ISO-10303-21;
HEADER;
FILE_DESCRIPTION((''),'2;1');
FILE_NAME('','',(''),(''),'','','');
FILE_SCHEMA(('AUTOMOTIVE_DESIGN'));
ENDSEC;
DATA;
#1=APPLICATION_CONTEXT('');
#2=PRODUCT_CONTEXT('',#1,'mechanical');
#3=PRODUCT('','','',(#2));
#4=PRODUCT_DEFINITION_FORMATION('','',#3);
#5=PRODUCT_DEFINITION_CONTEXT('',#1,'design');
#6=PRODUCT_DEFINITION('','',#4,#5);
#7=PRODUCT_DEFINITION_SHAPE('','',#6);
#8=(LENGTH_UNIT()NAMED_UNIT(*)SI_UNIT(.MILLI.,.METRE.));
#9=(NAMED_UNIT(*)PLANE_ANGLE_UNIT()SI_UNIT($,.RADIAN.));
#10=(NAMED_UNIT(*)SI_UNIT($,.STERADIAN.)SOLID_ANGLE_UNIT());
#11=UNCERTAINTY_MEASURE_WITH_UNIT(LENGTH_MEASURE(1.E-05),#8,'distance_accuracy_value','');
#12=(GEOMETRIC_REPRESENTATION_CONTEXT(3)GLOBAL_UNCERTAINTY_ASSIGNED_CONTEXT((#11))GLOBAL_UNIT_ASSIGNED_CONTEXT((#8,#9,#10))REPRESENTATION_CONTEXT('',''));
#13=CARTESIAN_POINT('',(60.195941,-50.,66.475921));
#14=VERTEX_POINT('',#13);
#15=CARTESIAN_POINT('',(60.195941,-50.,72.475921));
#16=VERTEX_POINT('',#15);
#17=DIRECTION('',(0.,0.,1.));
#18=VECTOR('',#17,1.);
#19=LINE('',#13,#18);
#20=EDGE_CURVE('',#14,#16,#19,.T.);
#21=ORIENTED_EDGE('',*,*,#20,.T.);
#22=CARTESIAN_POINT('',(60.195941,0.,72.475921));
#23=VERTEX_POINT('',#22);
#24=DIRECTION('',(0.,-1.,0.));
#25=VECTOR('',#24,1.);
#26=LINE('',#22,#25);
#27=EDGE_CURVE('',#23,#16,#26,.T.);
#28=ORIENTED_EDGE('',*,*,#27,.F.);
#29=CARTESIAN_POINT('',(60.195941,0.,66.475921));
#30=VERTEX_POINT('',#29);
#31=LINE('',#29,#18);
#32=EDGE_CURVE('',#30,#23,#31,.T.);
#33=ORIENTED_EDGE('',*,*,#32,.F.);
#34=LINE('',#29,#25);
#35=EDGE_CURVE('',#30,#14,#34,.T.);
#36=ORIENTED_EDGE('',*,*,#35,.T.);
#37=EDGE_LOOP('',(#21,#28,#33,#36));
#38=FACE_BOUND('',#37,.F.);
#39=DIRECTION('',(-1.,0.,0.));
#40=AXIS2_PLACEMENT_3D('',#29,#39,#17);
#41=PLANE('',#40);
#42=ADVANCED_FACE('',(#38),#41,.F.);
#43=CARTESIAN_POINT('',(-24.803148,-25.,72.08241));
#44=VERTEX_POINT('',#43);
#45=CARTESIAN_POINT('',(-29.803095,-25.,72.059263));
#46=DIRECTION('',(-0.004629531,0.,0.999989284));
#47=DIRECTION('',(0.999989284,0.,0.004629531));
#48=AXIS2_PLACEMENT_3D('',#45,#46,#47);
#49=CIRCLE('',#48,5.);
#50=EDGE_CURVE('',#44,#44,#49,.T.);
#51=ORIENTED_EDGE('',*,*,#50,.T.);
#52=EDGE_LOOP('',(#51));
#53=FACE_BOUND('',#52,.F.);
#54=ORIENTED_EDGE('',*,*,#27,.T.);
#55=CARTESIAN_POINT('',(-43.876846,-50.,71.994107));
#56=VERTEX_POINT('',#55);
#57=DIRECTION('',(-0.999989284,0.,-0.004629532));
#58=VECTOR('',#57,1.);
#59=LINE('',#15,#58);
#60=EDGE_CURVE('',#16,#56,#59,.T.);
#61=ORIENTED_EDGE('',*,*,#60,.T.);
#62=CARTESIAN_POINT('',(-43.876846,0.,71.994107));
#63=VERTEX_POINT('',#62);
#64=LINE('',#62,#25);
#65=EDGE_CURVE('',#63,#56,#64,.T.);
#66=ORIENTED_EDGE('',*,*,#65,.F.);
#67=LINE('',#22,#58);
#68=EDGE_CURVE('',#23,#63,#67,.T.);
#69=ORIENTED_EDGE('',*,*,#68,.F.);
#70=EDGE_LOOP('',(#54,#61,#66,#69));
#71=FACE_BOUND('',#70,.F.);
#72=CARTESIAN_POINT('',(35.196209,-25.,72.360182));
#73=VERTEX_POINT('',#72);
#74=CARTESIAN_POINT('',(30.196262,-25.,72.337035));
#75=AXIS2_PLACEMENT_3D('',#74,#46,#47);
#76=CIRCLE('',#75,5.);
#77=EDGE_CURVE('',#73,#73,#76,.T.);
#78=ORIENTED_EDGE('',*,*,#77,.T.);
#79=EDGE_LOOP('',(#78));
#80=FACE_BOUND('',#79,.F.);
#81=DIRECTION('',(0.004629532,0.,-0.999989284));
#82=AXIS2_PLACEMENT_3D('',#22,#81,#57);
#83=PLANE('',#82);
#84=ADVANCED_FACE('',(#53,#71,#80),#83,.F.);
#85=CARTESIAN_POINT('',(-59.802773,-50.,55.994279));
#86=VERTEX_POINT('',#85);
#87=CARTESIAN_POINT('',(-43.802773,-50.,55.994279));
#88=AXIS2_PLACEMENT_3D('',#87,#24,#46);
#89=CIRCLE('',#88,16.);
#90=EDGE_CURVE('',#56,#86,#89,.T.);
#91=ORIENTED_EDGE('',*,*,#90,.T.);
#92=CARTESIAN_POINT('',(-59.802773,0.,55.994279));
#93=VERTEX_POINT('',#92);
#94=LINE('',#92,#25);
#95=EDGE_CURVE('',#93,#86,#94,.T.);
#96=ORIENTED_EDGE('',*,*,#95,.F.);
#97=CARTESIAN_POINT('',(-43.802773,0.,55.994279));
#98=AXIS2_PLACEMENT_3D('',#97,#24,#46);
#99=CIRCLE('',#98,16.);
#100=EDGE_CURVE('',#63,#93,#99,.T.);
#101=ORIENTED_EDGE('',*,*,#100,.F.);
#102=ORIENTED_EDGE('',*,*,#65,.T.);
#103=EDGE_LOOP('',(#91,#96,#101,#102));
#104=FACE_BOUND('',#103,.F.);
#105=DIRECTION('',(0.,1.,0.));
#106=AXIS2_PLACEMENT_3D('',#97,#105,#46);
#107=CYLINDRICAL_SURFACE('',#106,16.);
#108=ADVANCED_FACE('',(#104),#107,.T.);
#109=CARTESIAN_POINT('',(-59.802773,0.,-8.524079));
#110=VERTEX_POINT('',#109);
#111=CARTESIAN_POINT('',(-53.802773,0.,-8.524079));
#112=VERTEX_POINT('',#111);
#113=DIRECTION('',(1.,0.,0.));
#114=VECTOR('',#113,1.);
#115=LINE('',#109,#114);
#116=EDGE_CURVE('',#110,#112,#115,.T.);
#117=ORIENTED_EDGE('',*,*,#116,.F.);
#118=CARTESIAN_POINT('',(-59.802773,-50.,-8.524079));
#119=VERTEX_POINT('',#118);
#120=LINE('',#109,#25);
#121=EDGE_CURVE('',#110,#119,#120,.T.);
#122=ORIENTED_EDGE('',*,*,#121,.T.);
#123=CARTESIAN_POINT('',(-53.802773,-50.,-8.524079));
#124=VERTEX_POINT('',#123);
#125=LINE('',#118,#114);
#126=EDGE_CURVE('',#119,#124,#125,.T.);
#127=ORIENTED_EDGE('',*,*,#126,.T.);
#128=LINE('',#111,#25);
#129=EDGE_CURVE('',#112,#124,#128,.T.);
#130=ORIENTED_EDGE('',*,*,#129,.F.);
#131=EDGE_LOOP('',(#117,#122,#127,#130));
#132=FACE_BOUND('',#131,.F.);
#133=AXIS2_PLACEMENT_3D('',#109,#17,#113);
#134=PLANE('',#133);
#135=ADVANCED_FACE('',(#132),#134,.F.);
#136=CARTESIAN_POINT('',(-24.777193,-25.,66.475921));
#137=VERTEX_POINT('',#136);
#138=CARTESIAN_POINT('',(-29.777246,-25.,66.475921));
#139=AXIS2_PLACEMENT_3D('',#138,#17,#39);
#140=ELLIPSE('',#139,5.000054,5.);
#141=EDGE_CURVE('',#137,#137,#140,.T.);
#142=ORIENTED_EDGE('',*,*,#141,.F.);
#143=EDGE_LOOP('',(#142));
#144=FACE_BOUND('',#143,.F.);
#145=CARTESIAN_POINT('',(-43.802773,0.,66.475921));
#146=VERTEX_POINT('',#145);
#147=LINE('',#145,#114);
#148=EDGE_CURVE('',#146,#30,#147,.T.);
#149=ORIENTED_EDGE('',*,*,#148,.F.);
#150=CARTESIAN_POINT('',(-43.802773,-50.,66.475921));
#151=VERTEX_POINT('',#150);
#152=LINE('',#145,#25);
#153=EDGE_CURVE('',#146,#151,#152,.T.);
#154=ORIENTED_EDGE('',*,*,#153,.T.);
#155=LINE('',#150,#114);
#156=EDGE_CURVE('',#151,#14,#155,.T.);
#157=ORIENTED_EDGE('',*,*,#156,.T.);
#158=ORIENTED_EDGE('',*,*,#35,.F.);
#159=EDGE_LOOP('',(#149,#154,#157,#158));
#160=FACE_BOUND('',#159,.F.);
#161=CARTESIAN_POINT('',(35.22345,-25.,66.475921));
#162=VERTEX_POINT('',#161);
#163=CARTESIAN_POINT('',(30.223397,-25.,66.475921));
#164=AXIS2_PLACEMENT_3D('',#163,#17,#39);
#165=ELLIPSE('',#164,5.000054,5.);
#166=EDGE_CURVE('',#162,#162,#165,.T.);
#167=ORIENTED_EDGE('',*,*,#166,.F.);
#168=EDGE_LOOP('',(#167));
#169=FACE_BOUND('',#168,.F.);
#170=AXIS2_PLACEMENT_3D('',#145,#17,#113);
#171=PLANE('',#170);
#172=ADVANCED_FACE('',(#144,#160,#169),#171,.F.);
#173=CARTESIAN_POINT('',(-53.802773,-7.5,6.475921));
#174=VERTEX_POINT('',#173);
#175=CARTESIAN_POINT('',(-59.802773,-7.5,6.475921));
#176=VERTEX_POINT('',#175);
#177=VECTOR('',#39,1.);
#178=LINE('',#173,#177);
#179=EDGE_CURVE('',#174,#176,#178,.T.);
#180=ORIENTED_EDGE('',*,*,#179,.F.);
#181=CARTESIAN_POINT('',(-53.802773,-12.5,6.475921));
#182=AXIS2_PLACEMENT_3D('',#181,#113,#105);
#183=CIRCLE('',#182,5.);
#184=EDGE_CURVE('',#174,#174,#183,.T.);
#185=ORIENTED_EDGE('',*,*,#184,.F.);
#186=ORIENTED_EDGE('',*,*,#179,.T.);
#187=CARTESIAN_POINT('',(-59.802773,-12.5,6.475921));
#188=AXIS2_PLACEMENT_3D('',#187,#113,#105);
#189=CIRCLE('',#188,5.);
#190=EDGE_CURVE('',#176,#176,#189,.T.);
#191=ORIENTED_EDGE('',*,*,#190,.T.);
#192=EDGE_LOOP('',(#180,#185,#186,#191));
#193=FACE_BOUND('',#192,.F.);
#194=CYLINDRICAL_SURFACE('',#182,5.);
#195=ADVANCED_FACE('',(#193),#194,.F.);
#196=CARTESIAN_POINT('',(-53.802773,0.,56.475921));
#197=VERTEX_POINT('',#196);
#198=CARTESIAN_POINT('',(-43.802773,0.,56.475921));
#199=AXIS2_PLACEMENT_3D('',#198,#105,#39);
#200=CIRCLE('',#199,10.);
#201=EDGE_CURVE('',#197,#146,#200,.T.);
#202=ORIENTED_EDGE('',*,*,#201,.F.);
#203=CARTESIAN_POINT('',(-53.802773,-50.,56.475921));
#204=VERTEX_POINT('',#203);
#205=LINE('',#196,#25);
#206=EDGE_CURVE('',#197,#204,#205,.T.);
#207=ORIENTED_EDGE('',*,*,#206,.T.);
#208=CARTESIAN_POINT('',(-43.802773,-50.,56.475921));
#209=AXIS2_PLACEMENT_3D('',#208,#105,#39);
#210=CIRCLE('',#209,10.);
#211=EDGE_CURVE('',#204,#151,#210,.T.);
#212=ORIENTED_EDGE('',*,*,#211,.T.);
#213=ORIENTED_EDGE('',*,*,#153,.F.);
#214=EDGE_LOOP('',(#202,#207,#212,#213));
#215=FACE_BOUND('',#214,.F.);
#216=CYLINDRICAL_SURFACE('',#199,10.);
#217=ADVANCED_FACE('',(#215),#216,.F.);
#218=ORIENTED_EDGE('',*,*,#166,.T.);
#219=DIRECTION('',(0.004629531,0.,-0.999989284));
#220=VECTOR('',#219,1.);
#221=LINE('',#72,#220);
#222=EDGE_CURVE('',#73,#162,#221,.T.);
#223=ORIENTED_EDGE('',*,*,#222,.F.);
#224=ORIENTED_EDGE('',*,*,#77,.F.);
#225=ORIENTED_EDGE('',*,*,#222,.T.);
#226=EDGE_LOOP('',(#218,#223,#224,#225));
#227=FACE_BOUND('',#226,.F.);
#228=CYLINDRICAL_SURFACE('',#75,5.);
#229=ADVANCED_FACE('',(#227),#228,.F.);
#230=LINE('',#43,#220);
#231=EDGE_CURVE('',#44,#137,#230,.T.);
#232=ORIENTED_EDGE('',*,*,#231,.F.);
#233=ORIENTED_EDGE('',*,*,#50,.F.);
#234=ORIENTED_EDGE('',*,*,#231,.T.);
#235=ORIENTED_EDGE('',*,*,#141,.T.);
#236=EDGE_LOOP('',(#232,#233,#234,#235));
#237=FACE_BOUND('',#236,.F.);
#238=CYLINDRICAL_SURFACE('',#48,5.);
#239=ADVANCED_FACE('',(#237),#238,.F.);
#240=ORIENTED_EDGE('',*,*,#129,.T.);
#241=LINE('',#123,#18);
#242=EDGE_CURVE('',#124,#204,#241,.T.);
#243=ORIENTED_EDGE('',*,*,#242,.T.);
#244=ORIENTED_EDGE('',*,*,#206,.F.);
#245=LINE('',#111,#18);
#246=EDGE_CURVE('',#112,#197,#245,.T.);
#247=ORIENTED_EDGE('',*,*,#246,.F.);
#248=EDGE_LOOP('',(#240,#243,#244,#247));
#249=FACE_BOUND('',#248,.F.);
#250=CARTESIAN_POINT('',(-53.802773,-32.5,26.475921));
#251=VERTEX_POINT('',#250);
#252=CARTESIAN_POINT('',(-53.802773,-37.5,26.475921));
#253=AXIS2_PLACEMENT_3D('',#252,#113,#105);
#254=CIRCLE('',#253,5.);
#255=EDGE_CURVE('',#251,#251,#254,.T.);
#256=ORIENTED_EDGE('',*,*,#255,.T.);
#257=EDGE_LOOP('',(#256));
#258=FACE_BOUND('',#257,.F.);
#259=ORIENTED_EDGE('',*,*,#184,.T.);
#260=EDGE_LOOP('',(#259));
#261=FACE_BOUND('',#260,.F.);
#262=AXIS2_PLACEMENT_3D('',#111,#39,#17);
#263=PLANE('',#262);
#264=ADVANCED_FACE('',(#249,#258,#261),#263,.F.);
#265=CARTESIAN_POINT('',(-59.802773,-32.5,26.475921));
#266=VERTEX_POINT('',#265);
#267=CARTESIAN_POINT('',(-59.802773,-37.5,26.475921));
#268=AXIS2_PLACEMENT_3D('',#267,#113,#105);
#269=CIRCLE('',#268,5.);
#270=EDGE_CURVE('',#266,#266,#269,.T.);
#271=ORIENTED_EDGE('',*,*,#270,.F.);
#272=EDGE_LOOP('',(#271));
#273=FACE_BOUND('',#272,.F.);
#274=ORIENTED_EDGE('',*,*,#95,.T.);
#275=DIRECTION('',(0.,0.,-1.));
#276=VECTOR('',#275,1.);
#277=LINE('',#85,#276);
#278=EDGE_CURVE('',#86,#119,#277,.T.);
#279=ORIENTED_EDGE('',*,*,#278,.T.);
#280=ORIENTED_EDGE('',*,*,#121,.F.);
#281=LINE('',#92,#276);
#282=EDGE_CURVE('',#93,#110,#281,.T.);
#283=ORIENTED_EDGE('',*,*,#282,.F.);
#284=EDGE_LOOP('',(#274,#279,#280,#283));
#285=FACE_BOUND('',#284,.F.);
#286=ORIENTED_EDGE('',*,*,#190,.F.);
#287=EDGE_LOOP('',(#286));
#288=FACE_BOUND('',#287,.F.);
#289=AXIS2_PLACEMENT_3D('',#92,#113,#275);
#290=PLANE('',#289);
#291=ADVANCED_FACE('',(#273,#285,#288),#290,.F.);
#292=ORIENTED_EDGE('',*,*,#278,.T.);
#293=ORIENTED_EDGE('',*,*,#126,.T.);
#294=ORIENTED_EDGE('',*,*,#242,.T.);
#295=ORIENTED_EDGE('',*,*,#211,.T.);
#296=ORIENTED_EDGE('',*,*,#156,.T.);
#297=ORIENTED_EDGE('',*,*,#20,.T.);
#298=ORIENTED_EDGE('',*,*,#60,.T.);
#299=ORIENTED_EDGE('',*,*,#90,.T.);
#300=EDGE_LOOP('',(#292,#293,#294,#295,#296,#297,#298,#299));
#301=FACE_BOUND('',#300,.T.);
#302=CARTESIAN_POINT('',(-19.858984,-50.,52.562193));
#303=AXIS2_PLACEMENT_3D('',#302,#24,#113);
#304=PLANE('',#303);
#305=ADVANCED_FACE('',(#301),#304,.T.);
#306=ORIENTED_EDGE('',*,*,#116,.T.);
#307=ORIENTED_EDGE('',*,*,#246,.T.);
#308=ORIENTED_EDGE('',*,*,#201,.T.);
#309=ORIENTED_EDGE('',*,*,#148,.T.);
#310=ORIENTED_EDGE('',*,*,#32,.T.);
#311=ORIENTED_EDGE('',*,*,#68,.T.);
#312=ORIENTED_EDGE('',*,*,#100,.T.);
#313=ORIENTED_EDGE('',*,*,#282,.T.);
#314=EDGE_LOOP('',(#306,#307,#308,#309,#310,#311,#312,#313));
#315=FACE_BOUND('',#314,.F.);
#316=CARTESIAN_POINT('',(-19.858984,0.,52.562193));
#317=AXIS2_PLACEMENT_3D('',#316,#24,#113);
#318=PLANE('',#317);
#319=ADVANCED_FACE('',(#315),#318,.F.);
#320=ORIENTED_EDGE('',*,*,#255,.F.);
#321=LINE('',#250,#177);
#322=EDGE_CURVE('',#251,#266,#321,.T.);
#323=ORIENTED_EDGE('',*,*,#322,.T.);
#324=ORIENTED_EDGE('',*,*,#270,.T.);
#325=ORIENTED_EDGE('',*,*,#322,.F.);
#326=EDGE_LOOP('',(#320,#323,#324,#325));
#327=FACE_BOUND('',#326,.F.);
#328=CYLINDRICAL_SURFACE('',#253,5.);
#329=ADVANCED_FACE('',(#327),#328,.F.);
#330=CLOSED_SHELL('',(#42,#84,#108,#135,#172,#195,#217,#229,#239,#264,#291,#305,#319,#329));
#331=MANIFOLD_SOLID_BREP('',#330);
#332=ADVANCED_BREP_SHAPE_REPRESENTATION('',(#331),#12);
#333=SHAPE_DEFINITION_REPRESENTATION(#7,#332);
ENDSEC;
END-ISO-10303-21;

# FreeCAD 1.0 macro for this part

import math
import FreeCAD as App
import Part
import Sketcher

doc = App.newDocument("Part")
params = doc.addObject("Spreadsheet::Sheet", "Params")
for row, (alias, value) in enumerate([
    ("sketch1_radius", "16 mm"),
    ("sketch1_radius2", "10 mm"),
    ("sketch1_height", "65 mm"),
    ("pad1_length", "50 mm"),
    ("sketch2_diameter", "10 mm"),
    ("pocket1_length", "25 mm"),
    ("sketch3_diameter", "10 mm"),
    ("pocket2_length", "25 mm"),
], start=1):
    params.set(f"A{row}", alias)
    params.set(f"B{row}", "=" + value)
    params.setAlias(f"B{row}", alias)

body = doc.addObject("PartDesign::Body", "Body")

# Sketch on XZ plane
sketch1 = body.newObject("Sketcher::SketchObject", "Sketch")
sketch1.AttachmentSupport = (doc.getObject("XZ_Plane"), [""])
sketch1.MapMode = "FlatFace"
sketch1.addGeometry(Part.ArcOfCircle(Part.Circle(App.Vector(-44, 56, 0), App.Vector(0, 0, 1), 16), math.radians(90), math.radians(180)), False)
sketch1.addGeometry(Part.LineSegment(App.Vector(-60, 56, 0), App.Vector(-60, -9, 0)), False)
sketch1.addGeometry(Part.LineSegment(App.Vector(-60, -9, 0), App.Vector(-54, -9, 0)), False)
sketch1.addGeometry(Part.LineSegment(App.Vector(-54, -9, 0), App.Vector(-54, 56, 0)), False)
sketch1.addGeometry(Part.ArcOfCircle(Part.Circle(App.Vector(-44, 56, 0), App.Vector(0, 0, 1), 10), math.radians(90), math.radians(180)), False)
sketch1.addGeometry(Part.LineSegment(App.Vector(-44, 66, 0), App.Vector(60, 66, 0)), False)
sketch1.addGeometry(Part.LineSegment(App.Vector(60, 66, 0), App.Vector(60, 72, 0)), False)
sketch1.addGeometry(Part.LineSegment(App.Vector(60, 72, 0), App.Vector(-44, 72, 0)), False)
sketch1.addConstraint(Sketcher.Constraint("Tangent", 0, 2, 1, 1))
sketch1.addConstraint(Sketcher.Constraint("Coincident", 1, 2, 2, 1))
sketch1.addConstraint(Sketcher.Constraint("Coincident", 2, 2, 3, 1))
sketch1.addConstraint(Sketcher.Constraint("Tangent", 3, 2, 4, 2))
sketch1.addConstraint(Sketcher.Constraint("Tangent", 4, 1, 5, 1))
sketch1.addConstraint(Sketcher.Constraint("Coincident", 5, 2, 6, 1))
sketch1.addConstraint(Sketcher.Constraint("Coincident", 6, 2, 7, 1))
sketch1.addConstraint(Sketcher.Constraint("Tangent", 7, 2, 0, 1))
sketch1.addConstraint(Sketcher.Constraint("Vertical", 1))
sketch1.addConstraint(Sketcher.Constraint("Horizontal", 2))
sketch1.addConstraint(Sketcher.Constraint("Vertical", 3))
sketch1.addConstraint(Sketcher.Constraint("Horizontal", 5))
sketch1.addConstraint(Sketcher.Constraint("Vertical", 6))
sketch1.addConstraint(Sketcher.Constraint("Vertical", 0, 3, 4, 3))
sketch1.addConstraint(Sketcher.Constraint("Equal", 2, 6))
sketch1.addConstraint(Sketcher.Constraint("Radius", 0, 16.0))
sketch1.addConstraint(Sketcher.Constraint("Radius", 4, 10.0))
sketch1.addConstraint(Sketcher.Constraint("DistanceY", 3, 1, 3, 2, 65.0))
sketch1.addConstraint(Sketcher.Constraint("Distance", 7, 104.073902))
sketch1.addConstraint(Sketcher.Constraint("DistanceY", 1, 2, 1, 1, 64.518358))
sketch1.addConstraint(Sketcher.Constraint("DistanceY", -1, 1, 0, 3, 55.994279))
sketch1.addConstraint(Sketcher.Constraint("DistanceX", -1, 1, 5, 2, 60.195941))
sketch1.setExpression("Constraints[15]", "Params.sketch1_radius")
sketch1.setExpression("Constraints[16]", "Params.sketch1_radius2")
sketch1.setExpression("Constraints[17]", "Params.sketch1_height")
pad1 = body.newObject("PartDesign::Pad", "Pad")
pad1.Profile = sketch1
pad1.setExpression("Length", "Params.pad1_length")

# Sketch on an angled plane
sketch2 = body.newObject("Sketcher::SketchObject", "Sketch001")
sketch2.Placement = App.Placement(App.Vector(-0.334236, 0, 72.195691), App.Rotation(App.Vector(0.999989284, 0, 0.004629531), App.Vector(0, 1.000000001, 0), App.Vector(-0.004629531, 0, 0.999989284), "ZXY"))
sketch2.addGeometry(Part.Circle(App.Vector(-29, -25, 0), App.Vector(0, 0, 1), 5), False)
sketch2.addGeometry(Part.Circle(App.Vector(31, -25, 0), App.Vector(0, 0, 1), 5), False)
sketch2.addConstraint(Sketcher.Constraint("Equal", 0, 1))
sketch2.addConstraint(Sketcher.Constraint("Horizontal", 0, 3, 1, 3))
sketch2.addConstraint(Sketcher.Constraint("Diameter", 0, 10.0))
sketch2.addConstraint(Sketcher.Constraint("DistanceY", 0, 3, -1, 1, 25.0))
sketch2.addConstraint(Sketcher.Constraint("DistanceX", 0, 3, 1, 3, 60.0))
sketch2.addConstraint(Sketcher.Constraint("DistanceX", 0, 3, -1, 1, 29.469175))
sketch2.setExpression("Constraints[2]", "Params.sketch2_diameter")
pocket1 = body.newObject("PartDesign::Pocket", "Pocket")
pocket1.Profile = sketch2
pocket1.setExpression("Length", "Params.pocket1_length")

# Sketch on YZ plane
sketch3 = body.newObject("Sketcher::SketchObject", "Sketch002")
sketch3.AttachmentSupport = (doc.getObject("YZ_Plane"), [""])
sketch3.MapMode = "FlatFace"
sketch3.AttachmentOffset = App.Placement(App.Vector(0, 0, -53.802773), App.Rotation())
sketch3.addGeometry(Part.Circle(App.Vector(-12, 6, 0), App.Vector(0, 0, 1), 5), False)
sketch3.addGeometry(Part.Circle(App.Vector(-38, 26, 0), App.Vector(0, 0, 1), 5), False)
sketch3.addConstraint(Sketcher.Constraint("Equal", 0, 1))
sketch3.addConstraint(Sketcher.Constraint("Diameter", 0, 10.0))
sketch3.addConstraint(Sketcher.Constraint("DistanceX", 1, 3, 0, 3, 25.0))
sketch3.addConstraint(Sketcher.Constraint("DistanceY", 0, 3, 1, 3, 20.0))
sketch3.addConstraint(Sketcher.Constraint("DistanceX", 0, 3, -1, 1, 12.5))
sketch3.addConstraint(Sketcher.Constraint("DistanceY", -1, 1, 0, 3, 6.475921))
sketch3.setExpression("Constraints[1]", "Params.sketch3_diameter")
pocket2 = body.newObject("PartDesign::Pocket", "Pocket001")
pocket2.Profile = sketch3
pocket2.setExpression("Length", "Params.pocket2_length")

doc.recompute()
